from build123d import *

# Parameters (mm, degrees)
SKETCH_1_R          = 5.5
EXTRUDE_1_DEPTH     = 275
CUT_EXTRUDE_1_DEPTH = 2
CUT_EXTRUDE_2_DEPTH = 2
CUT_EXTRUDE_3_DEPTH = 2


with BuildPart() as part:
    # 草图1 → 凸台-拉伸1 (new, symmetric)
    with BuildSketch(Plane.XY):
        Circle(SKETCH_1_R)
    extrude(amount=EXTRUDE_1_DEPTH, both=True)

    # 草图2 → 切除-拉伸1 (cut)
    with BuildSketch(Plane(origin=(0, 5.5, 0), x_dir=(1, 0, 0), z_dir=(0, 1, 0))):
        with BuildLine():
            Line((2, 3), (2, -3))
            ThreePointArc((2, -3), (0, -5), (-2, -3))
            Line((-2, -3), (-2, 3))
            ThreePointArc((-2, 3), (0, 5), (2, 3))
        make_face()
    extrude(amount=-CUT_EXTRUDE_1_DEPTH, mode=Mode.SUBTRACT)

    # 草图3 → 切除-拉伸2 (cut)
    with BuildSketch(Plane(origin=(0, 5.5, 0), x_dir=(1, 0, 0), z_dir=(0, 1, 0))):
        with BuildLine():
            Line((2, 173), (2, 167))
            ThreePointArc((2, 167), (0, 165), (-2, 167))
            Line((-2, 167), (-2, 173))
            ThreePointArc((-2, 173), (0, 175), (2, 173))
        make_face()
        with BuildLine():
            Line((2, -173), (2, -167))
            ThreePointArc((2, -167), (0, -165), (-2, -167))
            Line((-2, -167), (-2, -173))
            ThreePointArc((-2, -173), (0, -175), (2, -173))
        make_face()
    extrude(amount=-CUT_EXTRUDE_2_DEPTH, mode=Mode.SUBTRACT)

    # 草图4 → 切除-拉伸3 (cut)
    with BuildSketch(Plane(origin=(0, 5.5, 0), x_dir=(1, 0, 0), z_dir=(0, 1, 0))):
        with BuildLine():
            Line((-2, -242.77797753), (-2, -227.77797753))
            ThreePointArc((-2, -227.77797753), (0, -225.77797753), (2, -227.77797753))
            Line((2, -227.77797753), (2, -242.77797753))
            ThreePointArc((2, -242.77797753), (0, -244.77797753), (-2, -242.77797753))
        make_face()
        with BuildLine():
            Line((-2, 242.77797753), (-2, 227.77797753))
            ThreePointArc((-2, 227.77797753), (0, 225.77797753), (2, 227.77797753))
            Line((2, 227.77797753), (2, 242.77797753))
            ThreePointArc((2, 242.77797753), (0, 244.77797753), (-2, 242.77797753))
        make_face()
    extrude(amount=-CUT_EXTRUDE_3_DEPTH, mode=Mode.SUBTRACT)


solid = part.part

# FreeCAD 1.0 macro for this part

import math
import FreeCAD as App
import Part
import Sketcher
from FreeCAD import Vector
Q = App.Units.Quantity

doc = App.newDocument("Part")
body = doc.addObject("PartDesign::Body", "Body")

# Sketch on XY plane
sketch1 = body.newObject("Sketcher::SketchObject", "Sketch")
sketch1.AttachmentSupport = (doc.getObject("XY_Plane"), [""])
sketch1.MapMode = "FlatFace"
sketch1.addGeometry(Part.Circle(Vector(0, 0, 0), Vector(0, 0, 1), 6), False)
sketch1.addConstraint(Sketcher.Constraint("Coincident", 0, 3, -1, 1))
sketch1.addConstraint(Sketcher.Constraint("Diameter", 0, Q("11 mm")))
pad1 = body.newObject("PartDesign::Pad", "Pad")
pad1.Profile = sketch1
pad1.Length = 550
pad1.Midplane = True

# Sketch on XZ plane
sketch2 = body.newObject("Sketcher::SketchObject", "Sketch001")
sketch2.AttachmentSupport = (doc.getObject("XZ_Plane"), [""])
sketch2.MapMode = "FlatFace"
sketch2.AttachmentOffset = App.Placement(Vector(0, 0, -5.5), App.Rotation())
sketch2.addGeometry(Part.LineSegment(Vector(2, 3, 0), Vector(2, -3, 0)), False)
sketch2.addGeometry(Part.ArcOfCircle(Part.Circle(Vector(0, -3, 0), Vector(0, 0, 1), 2), math.radians(180), math.radians(360)), False)
sketch2.addGeometry(Part.LineSegment(Vector(-2, -3, 0), Vector(-2, 3, 0)), False)
sketch2.addGeometry(Part.ArcOfCircle(Part.Circle(Vector(0, 3, 0), Vector(0, 0, 1), 2), math.radians(0), math.radians(180)), False)
sketch2.addConstraint(Sketcher.Constraint("Tangent", 0, 2, 1, 2))
sketch2.addConstraint(Sketcher.Constraint("Tangent", 1, 1, 2, 1))
sketch2.addConstraint(Sketcher.Constraint("Tangent", 2, 2, 3, 2))
sketch2.addConstraint(Sketcher.Constraint("Tangent", 3, 1, 0, 1))
sketch2.addConstraint(Sketcher.Constraint("Vertical", 0))
sketch2.addConstraint(Sketcher.Constraint("Vertical", 2))
sketch2.addConstraint(Sketcher.Constraint("Symmetric", 1, 3, 3, 3, -1, 1))
sketch2.addConstraint(Sketcher.Constraint("Radius", 1, Q("2 mm")))
sketch2.addConstraint(Sketcher.Constraint("DistanceY", 0, 2, 0, 1, Q("6 mm")))
pocket1 = body.newObject("PartDesign::Pocket", "Pocket")
pocket1.Profile = sketch2
pocket1.Length = 2
pocket1.Reversed = True

# Sketch on XZ plane
sketch3 = body.newObject("Sketcher::SketchObject", "Sketch002")
sketch3.AttachmentSupport = (doc.getObject("XZ_Plane"), [""])
sketch3.MapMode = "FlatFace"
sketch3.AttachmentOffset = App.Placement(Vector(0, 0, -5.5), App.Rotation())
sketch3.addGeometry(Part.LineSegment(Vector(2, -167, 0), Vector(2, -173, 0)), False)
sketch3.addGeometry(Part.ArcOfCircle(Part.Circle(Vector(0, -173, 0), Vector(0, 0, 1), 2), math.radians(180), math.radians(360)), False)
sketch3.addGeometry(Part.LineSegment(Vector(-2, -173, 0), Vector(-2, -167, 0)), False)
sketch3.addGeometry(Part.ArcOfCircle(Part.Circle(Vector(0, -167, 0), Vector(0, 0, 1), 2), math.radians(0), math.radians(180)), False)
sketch3.addGeometry(Part.LineSegment(Vector(2, 173, 0), Vector(2, 167, 0)), False)
sketch3.addGeometry(Part.ArcOfCircle(Part.Circle(Vector(0, 167, 0), Vector(0, 0, 1), 2), math.radians(180), math.radians(360)), False)
sketch3.addGeometry(Part.LineSegment(Vector(-2, 167, 0), Vector(-2, 173, 0)), False)
sketch3.addGeometry(Part.ArcOfCircle(Part.Circle(Vector(0, 173, 0), Vector(0, 0, 1), 2), math.radians(0), math.radians(180)), False)
sketch3.addConstraint(Sketcher.Constraint("Tangent", 0, 2, 1, 2))
sketch3.addConstraint(Sketcher.Constraint("Tangent", 1, 1, 2, 1))
sketch3.addConstraint(Sketcher.Constraint("Tangent", 2, 2, 3, 2))
sketch3.addConstraint(Sketcher.Constraint("Tangent", 3, 1, 0, 1))
sketch3.addConstraint(Sketcher.Constraint("Tangent", 4, 2, 5, 2))
sketch3.addConstraint(Sketcher.Constraint("Tangent", 5, 1, 6, 1))
sketch3.addConstraint(Sketcher.Constraint("Tangent", 6, 2, 7, 2))
sketch3.addConstraint(Sketcher.Constraint("Tangent", 7, 1, 4, 1))
sketch3.addConstraint(Sketcher.Constraint("Vertical", 0))
sketch3.addConstraint(Sketcher.Constraint("Vertical", 2))
sketch3.addConstraint(Sketcher.Constraint("Vertical", 4))
sketch3.addConstraint(Sketcher.Constraint("Vertical", 6))
sketch3.addConstraint(Sketcher.Constraint("Equal", 3, 5))
sketch3.addConstraint(Sketcher.Constraint("Symmetric", 3, 3, 5, 3, -1, 1))
sketch3.addConstraint(Sketcher.Constraint("Symmetric", 1, 3, 7, 3, -1))
sketch3.addConstraint(Sketcher.Constraint("Radius", 1, Q("2 mm")))
sketch3.addConstraint(Sketcher.Constraint("DistanceY", 0, 2, 0, 1, Q("6 mm")))
sketch3.addConstraint(Sketcher.Constraint("DistanceY", 1, 3, -1, 1, Q("173 mm")))
pocket2 = body.newObject("PartDesign::Pocket", "Pocket001")
pocket2.Profile = sketch3
pocket2.Length = 2
pocket2.Reversed = True

# Sketch on XZ plane
sketch4 = body.newObject("Sketcher::SketchObject", "Sketch003")
sketch4.AttachmentSupport = (doc.getObject("XZ_Plane"), [""])
sketch4.MapMode = "FlatFace"
sketch4.AttachmentOffset = App.Placement(Vector(0, 0, -5.5), App.Rotation())
sketch4.addGeometry(Part.LineSegment(Vector(-2, 227.8, 0), Vector(-2, 242.8, 0)), False)
sketch4.addGeometry(Part.ArcOfCircle(Part.Circle(Vector(0, 242.8, 0), Vector(0, 0, 1), 2), math.radians(0), math.radians(180)), False)
sketch4.addGeometry(Part.LineSegment(Vector(2, 242.8, 0), Vector(2, 227.8, 0)), False)
sketch4.addGeometry(Part.ArcOfCircle(Part.Circle(Vector(0, 227.8, 0), Vector(0, 0, 1), 2), math.radians(180), math.radians(360)), False)
sketch4.addGeometry(Part.LineSegment(Vector(-2, -242.8, 0), Vector(-2, -227.8, 0)), False)
sketch4.addGeometry(Part.ArcOfCircle(Part.Circle(Vector(0, -227.8, 0), Vector(0, 0, 1), 2), math.radians(0), math.radians(180)), False)
sketch4.addGeometry(Part.LineSegment(Vector(2, -227.8, 0), Vector(2, -242.8, 0)), False)
sketch4.addGeometry(Part.ArcOfCircle(Part.Circle(Vector(0, -242.8, 0), Vector(0, 0, 1), 2), math.radians(180), math.radians(360)), False)
sketch4.addConstraint(Sketcher.Constraint("Tangent", 0, 2, 1, 2))
sketch4.addConstraint(Sketcher.Constraint("Tangent", 1, 1, 2, 1))
sketch4.addConstraint(Sketcher.Constraint("Tangent", 2, 2, 3, 2))
sketch4.addConstraint(Sketcher.Constraint("Tangent", 3, 1, 0, 1))
sketch4.addConstraint(Sketcher.Constraint("Tangent", 4, 2, 5, 2))
sketch4.addConstraint(Sketcher.Constraint("Tangent", 5, 1, 6, 1))
sketch4.addConstraint(Sketcher.Constraint("Tangent", 6, 2, 7, 2))
sketch4.addConstraint(Sketcher.Constraint("Tangent", 7, 1, 4, 1))
sketch4.addConstraint(Sketcher.Constraint("Vertical", 0))
sketch4.addConstraint(Sketcher.Constraint("Vertical", 2))
sketch4.addConstraint(Sketcher.Constraint("Vertical", 4))
sketch4.addConstraint(Sketcher.Constraint("Vertical", 6))
sketch4.addConstraint(Sketcher.Constraint("Equal", 3, 5))
sketch4.addConstraint(Sketcher.Constraint("Symmetric", 3, 3, 5, 3, -1, 1))
sketch4.addConstraint(Sketcher.Constraint("Symmetric", 1, 3, 7, 3, -1))
sketch4.addConstraint(Sketcher.Constraint("Radius", 1, Q("2 mm")))
sketch4.addConstraint(Sketcher.Constraint("DistanceY", 0, 1, 0, 2, Q("15 mm")))
sketch4.addConstraint(Sketcher.Constraint("DistanceY", -1, 1, 1, 3, Q("242.777978 mm")))
pocket3 = body.newObject("PartDesign::Pocket", "Pocket002")
pocket3.Profile = sketch4
pocket3.Length = 2
pocket3.Reversed = True

doc.recompute()
